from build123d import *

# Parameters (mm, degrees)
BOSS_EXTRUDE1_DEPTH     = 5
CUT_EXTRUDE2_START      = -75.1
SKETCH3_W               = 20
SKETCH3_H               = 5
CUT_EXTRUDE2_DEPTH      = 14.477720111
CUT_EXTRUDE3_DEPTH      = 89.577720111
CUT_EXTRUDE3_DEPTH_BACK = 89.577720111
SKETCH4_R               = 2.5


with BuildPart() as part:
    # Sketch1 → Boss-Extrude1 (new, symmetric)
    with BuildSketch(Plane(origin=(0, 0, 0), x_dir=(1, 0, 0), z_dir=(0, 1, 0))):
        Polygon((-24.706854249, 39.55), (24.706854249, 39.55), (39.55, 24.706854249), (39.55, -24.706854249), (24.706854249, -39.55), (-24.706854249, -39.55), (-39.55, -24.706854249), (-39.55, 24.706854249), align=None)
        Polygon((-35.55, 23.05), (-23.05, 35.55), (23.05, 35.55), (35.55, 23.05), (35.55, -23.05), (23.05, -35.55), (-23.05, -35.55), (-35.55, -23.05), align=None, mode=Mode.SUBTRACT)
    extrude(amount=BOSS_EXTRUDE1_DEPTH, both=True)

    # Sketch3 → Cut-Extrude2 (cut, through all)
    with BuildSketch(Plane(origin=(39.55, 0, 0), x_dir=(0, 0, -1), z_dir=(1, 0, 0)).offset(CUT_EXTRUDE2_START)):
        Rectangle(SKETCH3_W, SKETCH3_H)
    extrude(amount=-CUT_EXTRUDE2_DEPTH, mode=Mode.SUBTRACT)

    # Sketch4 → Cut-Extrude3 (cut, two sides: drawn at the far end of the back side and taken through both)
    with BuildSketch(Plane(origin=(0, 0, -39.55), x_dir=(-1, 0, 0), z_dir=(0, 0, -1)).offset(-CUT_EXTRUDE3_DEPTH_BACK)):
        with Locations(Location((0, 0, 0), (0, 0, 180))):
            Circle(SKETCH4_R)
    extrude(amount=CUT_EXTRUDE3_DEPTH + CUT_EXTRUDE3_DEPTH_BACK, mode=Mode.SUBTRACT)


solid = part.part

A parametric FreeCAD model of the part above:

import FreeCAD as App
import Part
import Sketcher


def add_polygon(sketch, points):
    """Adds a closed chain of lines whose ends are joined by coincident constraints."""
    first, n = sketch.GeometryCount, len(points)
    for a, b in zip(points, points[1:] + points[:1]):
        sketch.addGeometry(Part.LineSegment(App.Vector(*a, 0), App.Vector(*b, 0)), False)
    for i in range(n):
        sketch.addConstraint(Sketcher.Constraint("Coincident", first + i, 2, first + (i + 1) % n, 1))

doc = App.newDocument("Part")
body = doc.addObject("PartDesign::Body", "Body")

# Sketch on XZ plane
sketch1 = body.newObject("Sketcher::SketchObject", "Sketch")
sketch1.AttachmentSupport = (doc.getObject("XZ_Plane"), [""])
sketch1.MapMode = "FlatFace"
add_polygon(sketch1, [(25, -40), (-25, -40), (-40, -25), (-40, 25), (-25, 40), (25, 40), (40, 25), (40, -25)])  # lines 0-7
add_polygon(sketch1, [(-36, -23), (-23, -36), (23, -36), (36, -23), (36, 23), (23, 36), (-23, 36), (-36, 23)])  # lines 8-15
sketch1.addConstraint([
    Sketcher.Constraint("Horizontal", 0),
    Sketcher.Constraint("Vertical", 2),
    Sketcher.Constraint("Horizontal", 4),
    Sketcher.Constraint("Vertical", 6),
    Sketcher.Constraint("Horizontal", 9),
    Sketcher.Constraint("Vertical", 11),
    Sketcher.Constraint("Horizontal", 13),
    Sketcher.Constraint("Vertical", 15),
    Sketcher.Constraint("Symmetric", 0, 2, 4, 2, -1, 1),
    Sketcher.Constraint("Symmetric", 1, 2, 5, 2, -1, 1),
    Sketcher.Constraint("Symmetric", 8, 2, 12, 2, -1, 1),
    Sketcher.Constraint("Symmetric", 10, 2, 14, 2, -1, 1),
    Sketcher.Constraint("Perpendicular", 1, 3),
    Sketcher.Constraint("Perpendicular", 5, 7),
    Sketcher.Constraint("Perpendicular", 7, 8),
    Sketcher.Constraint("Perpendicular", 8, 10),
    Sketcher.Constraint("Perpendicular", 10, 12),
    Sketcher.Constraint("Perpendicular", 12, 14),
    Sketcher.Constraint("Horizontal", 2, 2, 5, 2),
    Sketcher.Constraint("Horizontal", 1, 2, 6, 2),
    Sketcher.Constraint("Horizontal", 11, 2, 14, 2),
    Sketcher.Constraint("Vertical", 0, 2, 3, 2),
    Sketcher.Constraint("Equal", 4, 2),
    Sketcher.Constraint("Equal", 13, 11),
    Sketcher.Constraint("DistanceX", 9, 1, 9, 2, 46.1),
    Sketcher.Constraint("DistanceY", 0, 2, 8, 2, 4.0),
    Sketcher.Constraint("DistanceY", 0, 2, 3, 2, 79.1),
    Sketcher.Constraint("DistanceX", 0, 2, 0, 1, 49.413708),
])
pad1 = body.newObject("PartDesign::Pad", "Pad")
pad1.Profile = sketch1
pad1.Length = 10
pad1.Midplane = True

# Sketch on YZ plane
sketch2 = body.newObject("Sketcher::SketchObject", "Sketch001")
sketch2.AttachmentSupport = (doc.getObject("YZ_Plane"), [""])
sketch2.MapMode = "FlatFace"
sketch2.AttachmentOffset = App.Placement(App.Vector(0, 0, -35.55), App.Rotation())
add_polygon(sketch2, [(2, 10), (-2, 10), (-2, -10), (2, -10)])  # lines 0-3
sketch2.addConstraint([
    Sketcher.Constraint("Horizontal", 0),
    Sketcher.Constraint("Vertical", 1),
    Sketcher.Constraint("Horizontal", 2),
    Sketcher.Constraint("Vertical", 3),
    Sketcher.Constraint("Symmetric", 0, 2, 2, 2, -1, 1),
    Sketcher.Constraint("DistanceX", 0, 2, 0, 1, 5.0),
    Sketcher.Constraint("DistanceY", 1, 2, 1, 1, 20.0),
])
pocket1 = body.newObject("PartDesign::Pocket", "Pocket")
pocket1.Profile = sketch2
pocket1.Type = "ThroughAll"

# Sketch on XY plane
sketch3 = body.newObject("Sketcher::SketchObject", "Sketch002")
sketch3.AttachmentSupport = (doc.getObject("XY_Plane"), [""])
sketch3.MapMode = "FlatFace"
sketch3.AttachmentOffset = App.Placement(App.Vector(0, 0, -39.55), App.Rotation())
sketch3.addGeometry(Part.Circle(App.Vector(0, 0, 0), App.Vector(0, 0, 1), 2.5), False)
sketch3.addConstraint([
    Sketcher.Constraint("Coincident", 0, 3, -1, 1),
    Sketcher.Constraint("Diameter", 0, 5.0),
])
pocket2 = body.newObject("PartDesign::Pocket", "Pocket001")
pocket2.Profile = sketch3
pocket2.Type = "ThroughAll"
pocket2.Midplane = True

doc.recompute()
